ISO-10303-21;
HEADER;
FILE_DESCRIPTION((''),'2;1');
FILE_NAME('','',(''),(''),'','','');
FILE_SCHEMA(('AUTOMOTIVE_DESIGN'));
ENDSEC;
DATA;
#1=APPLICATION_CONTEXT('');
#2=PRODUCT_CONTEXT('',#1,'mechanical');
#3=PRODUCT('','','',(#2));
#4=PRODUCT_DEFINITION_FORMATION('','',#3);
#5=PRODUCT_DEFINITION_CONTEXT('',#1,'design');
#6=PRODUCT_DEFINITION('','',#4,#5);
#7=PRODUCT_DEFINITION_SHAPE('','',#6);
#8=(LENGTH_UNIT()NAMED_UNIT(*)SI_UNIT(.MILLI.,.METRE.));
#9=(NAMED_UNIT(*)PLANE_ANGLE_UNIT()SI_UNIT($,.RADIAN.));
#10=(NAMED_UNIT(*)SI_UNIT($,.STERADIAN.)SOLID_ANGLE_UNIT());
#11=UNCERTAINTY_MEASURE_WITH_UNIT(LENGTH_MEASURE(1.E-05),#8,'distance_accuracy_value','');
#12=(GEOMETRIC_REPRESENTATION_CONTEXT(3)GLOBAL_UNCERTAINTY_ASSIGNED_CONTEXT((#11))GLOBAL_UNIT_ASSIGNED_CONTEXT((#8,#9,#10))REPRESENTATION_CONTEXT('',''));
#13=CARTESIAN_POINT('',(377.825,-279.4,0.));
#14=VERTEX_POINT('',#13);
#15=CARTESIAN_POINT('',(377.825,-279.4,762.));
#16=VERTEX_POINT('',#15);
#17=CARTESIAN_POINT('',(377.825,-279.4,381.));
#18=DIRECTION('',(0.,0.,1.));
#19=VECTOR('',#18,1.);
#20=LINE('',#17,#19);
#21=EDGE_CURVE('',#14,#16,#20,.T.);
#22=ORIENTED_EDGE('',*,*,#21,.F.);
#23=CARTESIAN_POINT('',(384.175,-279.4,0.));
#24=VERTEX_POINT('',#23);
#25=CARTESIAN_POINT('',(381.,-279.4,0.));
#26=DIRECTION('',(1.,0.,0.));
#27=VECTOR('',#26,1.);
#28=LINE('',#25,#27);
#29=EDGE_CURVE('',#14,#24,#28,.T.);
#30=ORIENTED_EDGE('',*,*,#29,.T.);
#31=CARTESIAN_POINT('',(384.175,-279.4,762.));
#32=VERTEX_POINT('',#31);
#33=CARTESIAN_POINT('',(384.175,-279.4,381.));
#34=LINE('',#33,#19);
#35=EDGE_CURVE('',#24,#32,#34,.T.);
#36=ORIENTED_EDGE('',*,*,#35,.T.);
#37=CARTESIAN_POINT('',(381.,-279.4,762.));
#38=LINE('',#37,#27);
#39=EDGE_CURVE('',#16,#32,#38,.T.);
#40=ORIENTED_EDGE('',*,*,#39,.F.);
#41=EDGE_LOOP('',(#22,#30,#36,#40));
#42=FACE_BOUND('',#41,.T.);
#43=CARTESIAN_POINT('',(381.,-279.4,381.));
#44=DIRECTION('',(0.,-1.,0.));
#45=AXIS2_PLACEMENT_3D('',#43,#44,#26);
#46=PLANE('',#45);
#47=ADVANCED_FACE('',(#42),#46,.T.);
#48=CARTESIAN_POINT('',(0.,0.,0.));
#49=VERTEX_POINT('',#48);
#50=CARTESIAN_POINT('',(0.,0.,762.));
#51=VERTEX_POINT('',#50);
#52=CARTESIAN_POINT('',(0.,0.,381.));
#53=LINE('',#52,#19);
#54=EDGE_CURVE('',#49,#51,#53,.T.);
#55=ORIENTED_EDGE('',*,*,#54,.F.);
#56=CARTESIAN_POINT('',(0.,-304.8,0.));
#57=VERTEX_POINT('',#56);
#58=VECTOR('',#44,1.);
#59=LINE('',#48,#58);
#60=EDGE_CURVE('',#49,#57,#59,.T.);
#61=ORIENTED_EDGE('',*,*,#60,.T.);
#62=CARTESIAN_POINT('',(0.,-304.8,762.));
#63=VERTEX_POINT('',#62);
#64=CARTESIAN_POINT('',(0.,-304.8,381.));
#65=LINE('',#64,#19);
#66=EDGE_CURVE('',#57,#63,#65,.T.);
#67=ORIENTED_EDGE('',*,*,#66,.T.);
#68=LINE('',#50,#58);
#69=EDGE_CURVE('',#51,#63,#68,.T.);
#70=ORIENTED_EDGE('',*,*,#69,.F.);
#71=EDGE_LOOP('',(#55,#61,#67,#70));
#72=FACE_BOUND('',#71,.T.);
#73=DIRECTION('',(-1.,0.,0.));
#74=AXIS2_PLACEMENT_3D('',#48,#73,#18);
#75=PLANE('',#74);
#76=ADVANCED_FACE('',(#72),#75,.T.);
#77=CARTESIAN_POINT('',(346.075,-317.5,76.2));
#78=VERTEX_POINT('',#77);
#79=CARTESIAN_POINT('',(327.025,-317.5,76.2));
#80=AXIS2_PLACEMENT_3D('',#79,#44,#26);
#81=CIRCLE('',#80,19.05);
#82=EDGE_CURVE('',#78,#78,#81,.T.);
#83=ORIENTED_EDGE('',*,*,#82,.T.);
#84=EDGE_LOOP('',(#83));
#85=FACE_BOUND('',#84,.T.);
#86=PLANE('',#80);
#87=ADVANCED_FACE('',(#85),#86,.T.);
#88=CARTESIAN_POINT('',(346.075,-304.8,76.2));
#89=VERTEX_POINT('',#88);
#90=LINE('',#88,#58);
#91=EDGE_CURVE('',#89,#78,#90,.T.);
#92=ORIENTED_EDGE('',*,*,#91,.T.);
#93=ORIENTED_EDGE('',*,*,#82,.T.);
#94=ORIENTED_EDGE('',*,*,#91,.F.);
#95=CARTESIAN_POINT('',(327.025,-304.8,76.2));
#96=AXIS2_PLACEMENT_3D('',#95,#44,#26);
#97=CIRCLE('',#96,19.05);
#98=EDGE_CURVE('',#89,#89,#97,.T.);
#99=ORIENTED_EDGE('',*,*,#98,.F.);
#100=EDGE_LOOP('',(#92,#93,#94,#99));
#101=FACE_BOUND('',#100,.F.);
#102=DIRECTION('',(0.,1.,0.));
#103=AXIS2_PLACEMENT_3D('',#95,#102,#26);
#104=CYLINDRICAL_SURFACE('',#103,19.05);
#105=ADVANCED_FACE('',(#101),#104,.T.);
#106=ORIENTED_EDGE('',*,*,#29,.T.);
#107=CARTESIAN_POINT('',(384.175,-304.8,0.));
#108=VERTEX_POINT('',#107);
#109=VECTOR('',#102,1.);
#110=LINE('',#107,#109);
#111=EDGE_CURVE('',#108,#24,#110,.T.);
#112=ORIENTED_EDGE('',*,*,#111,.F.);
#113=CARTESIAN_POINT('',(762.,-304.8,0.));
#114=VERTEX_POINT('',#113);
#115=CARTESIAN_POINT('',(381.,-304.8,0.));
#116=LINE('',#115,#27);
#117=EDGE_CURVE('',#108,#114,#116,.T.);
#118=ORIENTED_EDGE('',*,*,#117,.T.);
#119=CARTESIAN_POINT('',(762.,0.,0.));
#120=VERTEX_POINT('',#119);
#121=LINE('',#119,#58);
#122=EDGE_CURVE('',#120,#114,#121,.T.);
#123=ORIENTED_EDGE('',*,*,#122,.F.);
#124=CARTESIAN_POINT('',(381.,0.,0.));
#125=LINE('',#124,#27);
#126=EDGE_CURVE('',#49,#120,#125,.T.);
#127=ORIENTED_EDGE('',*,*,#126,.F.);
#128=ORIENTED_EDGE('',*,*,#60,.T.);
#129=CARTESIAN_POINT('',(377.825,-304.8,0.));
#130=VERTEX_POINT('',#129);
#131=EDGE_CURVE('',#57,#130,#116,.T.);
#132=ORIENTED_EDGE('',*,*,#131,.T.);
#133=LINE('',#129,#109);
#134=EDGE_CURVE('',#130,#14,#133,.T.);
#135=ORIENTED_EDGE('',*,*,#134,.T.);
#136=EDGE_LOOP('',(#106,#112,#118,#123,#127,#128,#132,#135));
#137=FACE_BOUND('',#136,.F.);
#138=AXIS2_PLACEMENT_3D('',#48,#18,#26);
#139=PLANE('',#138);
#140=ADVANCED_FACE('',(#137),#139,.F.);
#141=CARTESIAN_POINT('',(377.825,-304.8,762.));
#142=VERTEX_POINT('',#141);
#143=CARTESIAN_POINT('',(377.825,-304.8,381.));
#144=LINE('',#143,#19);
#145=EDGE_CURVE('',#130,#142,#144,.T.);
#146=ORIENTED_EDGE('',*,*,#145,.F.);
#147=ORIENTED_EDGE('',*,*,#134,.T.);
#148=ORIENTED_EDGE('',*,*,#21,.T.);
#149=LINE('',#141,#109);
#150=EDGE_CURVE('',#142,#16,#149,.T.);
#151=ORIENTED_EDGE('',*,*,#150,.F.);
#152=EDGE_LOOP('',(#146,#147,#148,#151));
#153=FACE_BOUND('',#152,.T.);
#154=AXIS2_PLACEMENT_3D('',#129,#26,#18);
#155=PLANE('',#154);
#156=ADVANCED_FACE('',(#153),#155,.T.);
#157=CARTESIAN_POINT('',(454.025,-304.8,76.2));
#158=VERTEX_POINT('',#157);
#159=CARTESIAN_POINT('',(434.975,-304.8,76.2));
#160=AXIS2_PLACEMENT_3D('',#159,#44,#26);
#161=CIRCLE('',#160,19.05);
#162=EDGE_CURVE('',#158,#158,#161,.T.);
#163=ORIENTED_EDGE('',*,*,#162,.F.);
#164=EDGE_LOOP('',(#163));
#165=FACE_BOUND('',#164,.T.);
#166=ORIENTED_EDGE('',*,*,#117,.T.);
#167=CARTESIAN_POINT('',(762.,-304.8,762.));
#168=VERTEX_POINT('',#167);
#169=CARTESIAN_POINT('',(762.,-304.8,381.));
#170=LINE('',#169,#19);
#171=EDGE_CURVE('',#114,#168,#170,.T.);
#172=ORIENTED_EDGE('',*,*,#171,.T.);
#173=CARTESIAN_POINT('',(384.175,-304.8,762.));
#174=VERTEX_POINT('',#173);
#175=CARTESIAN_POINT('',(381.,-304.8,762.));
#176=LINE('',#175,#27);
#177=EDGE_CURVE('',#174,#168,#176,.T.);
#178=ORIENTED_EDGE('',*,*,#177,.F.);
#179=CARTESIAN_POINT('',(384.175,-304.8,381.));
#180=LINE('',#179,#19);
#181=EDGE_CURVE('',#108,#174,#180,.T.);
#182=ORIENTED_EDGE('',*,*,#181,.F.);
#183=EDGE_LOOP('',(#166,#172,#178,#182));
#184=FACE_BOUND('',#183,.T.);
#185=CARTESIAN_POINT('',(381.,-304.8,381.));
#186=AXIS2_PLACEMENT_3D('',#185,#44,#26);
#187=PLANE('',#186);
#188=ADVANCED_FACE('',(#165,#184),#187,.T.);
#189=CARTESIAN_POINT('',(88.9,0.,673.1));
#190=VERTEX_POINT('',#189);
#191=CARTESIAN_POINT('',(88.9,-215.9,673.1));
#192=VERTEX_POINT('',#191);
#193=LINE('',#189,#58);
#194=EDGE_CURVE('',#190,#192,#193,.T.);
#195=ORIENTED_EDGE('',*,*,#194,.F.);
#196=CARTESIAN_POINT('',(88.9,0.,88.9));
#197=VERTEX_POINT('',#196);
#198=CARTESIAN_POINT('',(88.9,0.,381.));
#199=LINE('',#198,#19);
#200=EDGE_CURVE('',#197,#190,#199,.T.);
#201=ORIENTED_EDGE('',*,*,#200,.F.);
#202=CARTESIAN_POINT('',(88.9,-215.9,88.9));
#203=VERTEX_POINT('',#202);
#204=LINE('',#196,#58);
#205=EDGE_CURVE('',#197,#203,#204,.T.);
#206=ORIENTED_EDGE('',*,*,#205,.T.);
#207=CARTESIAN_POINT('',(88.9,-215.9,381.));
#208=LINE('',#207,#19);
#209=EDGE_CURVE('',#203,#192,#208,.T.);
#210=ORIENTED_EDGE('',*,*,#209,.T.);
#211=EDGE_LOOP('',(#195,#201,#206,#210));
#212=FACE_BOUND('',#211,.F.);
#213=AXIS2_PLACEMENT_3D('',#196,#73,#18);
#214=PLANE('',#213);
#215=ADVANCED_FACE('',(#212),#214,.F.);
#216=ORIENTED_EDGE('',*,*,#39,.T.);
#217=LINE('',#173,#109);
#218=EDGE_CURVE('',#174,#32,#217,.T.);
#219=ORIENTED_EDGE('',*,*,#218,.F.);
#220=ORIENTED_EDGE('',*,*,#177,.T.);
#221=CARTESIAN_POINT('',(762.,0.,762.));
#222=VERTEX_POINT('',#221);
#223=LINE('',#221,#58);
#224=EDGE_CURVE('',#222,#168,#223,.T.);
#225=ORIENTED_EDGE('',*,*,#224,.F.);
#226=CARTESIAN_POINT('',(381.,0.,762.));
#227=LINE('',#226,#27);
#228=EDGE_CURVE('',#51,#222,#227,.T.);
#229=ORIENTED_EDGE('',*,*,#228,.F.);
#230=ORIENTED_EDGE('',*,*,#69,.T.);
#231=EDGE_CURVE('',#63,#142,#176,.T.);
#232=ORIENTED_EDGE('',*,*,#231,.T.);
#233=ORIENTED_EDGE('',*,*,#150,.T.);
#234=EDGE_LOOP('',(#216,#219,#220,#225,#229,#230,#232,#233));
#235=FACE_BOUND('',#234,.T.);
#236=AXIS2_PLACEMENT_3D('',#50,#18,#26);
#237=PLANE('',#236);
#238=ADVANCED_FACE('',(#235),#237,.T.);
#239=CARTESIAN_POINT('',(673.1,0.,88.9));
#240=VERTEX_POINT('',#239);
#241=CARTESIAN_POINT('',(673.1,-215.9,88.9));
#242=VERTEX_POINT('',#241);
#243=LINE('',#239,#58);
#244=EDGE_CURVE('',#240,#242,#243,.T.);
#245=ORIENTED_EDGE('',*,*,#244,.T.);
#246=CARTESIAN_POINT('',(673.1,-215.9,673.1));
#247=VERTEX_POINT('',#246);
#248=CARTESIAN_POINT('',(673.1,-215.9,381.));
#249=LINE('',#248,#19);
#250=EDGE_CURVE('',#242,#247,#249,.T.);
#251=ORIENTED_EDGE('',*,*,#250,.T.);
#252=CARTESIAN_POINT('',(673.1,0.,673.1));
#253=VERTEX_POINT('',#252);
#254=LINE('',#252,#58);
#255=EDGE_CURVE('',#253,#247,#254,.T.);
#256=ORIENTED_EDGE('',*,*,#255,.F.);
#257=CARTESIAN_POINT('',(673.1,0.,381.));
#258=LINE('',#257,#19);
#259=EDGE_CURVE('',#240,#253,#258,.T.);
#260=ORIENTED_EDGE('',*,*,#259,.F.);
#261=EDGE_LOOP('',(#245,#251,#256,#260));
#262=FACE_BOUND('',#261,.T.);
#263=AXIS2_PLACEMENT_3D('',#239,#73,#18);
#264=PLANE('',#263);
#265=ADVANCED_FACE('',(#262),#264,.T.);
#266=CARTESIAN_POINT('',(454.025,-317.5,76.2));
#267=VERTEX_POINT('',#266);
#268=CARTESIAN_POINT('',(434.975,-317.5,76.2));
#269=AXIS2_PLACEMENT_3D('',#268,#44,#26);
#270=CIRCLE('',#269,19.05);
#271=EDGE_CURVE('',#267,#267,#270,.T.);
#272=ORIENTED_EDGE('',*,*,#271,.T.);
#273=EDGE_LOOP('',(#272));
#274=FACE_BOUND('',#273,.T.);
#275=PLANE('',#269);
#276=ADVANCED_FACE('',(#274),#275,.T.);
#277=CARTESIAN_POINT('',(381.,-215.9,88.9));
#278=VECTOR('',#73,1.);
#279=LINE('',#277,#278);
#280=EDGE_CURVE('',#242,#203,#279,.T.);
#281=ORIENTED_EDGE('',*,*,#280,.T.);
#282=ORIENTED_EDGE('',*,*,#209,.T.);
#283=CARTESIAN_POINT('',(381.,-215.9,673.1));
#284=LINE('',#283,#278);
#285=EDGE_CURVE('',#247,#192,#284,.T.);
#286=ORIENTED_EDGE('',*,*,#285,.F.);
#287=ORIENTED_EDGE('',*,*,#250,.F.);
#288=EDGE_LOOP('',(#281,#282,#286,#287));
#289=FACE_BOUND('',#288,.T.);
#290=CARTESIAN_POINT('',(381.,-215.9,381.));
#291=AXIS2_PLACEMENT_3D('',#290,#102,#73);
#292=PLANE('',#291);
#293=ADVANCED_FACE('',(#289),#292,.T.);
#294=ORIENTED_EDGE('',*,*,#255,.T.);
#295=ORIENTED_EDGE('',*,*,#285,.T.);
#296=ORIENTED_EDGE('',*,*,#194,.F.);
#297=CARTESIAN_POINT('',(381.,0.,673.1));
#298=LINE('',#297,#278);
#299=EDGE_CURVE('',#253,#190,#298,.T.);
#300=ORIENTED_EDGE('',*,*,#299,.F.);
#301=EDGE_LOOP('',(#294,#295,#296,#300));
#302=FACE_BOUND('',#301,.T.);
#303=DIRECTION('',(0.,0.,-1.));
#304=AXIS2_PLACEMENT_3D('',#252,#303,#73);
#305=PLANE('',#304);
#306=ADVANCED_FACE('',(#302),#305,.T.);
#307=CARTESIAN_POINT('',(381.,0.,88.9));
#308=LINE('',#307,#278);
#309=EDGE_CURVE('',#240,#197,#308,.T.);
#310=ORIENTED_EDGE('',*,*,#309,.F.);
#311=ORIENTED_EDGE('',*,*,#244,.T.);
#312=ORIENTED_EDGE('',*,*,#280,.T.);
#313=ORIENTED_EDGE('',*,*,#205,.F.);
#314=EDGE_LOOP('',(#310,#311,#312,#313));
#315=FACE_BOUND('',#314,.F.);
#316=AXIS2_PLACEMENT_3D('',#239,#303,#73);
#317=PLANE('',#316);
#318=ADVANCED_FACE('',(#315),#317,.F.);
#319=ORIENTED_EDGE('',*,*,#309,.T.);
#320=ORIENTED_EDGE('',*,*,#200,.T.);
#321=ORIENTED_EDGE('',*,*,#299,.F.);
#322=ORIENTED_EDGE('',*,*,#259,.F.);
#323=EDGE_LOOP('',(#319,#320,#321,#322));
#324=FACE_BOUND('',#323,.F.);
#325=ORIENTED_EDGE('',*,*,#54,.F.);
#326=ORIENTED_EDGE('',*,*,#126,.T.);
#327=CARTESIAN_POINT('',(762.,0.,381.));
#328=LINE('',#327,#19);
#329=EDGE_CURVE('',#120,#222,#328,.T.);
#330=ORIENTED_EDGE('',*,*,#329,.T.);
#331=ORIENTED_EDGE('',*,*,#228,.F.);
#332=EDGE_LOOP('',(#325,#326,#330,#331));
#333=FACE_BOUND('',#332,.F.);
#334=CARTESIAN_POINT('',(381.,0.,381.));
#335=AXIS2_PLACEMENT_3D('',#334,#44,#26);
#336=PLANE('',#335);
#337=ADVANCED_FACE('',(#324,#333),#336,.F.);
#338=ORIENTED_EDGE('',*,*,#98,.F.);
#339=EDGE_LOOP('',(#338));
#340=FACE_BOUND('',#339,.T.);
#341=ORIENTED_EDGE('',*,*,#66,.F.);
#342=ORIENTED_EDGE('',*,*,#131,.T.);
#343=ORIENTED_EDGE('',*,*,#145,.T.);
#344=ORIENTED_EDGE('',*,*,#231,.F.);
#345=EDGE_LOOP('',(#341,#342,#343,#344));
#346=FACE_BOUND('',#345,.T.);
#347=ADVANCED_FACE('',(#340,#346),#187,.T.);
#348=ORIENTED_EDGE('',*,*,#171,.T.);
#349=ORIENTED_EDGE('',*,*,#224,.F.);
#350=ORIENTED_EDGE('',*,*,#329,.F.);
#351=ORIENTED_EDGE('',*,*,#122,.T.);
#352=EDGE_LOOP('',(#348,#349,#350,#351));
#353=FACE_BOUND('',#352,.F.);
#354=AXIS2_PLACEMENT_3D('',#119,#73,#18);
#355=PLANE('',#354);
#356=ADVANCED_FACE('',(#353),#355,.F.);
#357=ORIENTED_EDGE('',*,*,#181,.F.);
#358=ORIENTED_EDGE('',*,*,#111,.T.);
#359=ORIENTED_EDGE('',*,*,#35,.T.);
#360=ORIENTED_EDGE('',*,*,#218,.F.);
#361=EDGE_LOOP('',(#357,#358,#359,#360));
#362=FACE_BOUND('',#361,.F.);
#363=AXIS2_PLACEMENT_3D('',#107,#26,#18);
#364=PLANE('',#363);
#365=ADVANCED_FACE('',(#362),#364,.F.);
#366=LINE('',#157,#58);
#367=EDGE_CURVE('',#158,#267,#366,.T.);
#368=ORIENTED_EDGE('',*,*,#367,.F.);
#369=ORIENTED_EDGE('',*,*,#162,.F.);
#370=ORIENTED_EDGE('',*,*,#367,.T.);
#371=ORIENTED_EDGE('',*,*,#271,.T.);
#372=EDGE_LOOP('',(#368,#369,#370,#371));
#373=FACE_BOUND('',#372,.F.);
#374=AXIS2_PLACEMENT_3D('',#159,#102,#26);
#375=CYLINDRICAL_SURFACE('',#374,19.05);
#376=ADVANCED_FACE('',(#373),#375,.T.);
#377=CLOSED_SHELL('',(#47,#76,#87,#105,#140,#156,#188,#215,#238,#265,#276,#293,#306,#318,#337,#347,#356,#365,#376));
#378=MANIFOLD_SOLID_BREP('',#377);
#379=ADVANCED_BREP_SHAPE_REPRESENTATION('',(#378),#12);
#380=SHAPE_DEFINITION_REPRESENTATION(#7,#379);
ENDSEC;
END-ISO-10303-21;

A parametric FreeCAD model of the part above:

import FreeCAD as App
import Part
import Sketcher
from FreeCAD import Vector
Q = App.Units.Quantity

doc = App.newDocument("Part")
body = doc.addObject("PartDesign::Body", "Body")

sketch1 = body.newObject("Sketcher::SketchObject", "Sketch")
sketch1.AttachmentSupport = (doc.getObject("XZ_Plane"), [""])
sketch1.MapMode = "FlatFace"
sketch1.addGeometry(Part.LineSegment(Vector(0, 762, 0), Vector(0, 0, 0)), False)
sketch1.addGeometry(Part.LineSegment(Vector(0, 0, 0), Vector(762, 0, 0)), False)
sketch1.addGeometry(Part.LineSegment(Vector(762, 0, 0), Vector(762, 762, 0)), False)
sketch1.addGeometry(Part.LineSegment(Vector(762, 762, 0), Vector(0, 762, 0)), False)
sketch1.addConstraint(Sketcher.Constraint("Coincident", 0, 2, 1, 1))
sketch1.addConstraint(Sketcher.Constraint("Coincident", 1, 2, 2, 1))
sketch1.addConstraint(Sketcher.Constraint("Coincident", 2, 2, 3, 1))
sketch1.addConstraint(Sketcher.Constraint("Coincident", 3, 2, 0, 1))
sketch1.addConstraint(Sketcher.Constraint("Vertical", 0))
sketch1.addConstraint(Sketcher.Constraint("Horizontal", 1))
sketch1.addConstraint(Sketcher.Constraint("Vertical", 2))
sketch1.addConstraint(Sketcher.Constraint("Horizontal", 3))
sketch1.addConstraint(Sketcher.Constraint("Coincident", 0, 2, -1, 1))
sketch1.addConstraint(Sketcher.Constraint("Equal", 3, 0))
sketch1.addConstraint(Sketcher.Constraint("DistanceX", 1, 1, 1, 2, Q("30 in")))
pad1 = body.newObject("PartDesign::Pad", "Pad")
pad1.Profile = sketch1
pad1.Length = Q("12 in")

sketch2 = body.newObject("Sketcher::SketchObject", "Sketch001")
sketch2.AttachmentSupport = (doc.getObject("XZ_Plane"), [""])
sketch2.MapMode = "FlatFace"
sketch2.AttachmentOffset = App.Placement(Vector(0, 0, 12 * 25.4), App.Rotation())
sketch2.addGeometry(Part.LineSegment(Vector(378, 762, 0), Vector(378, 0, 0)), False)
sketch2.addGeometry(Part.LineSegment(Vector(378, 0, 0), Vector(384, 0, 0)), False)
sketch2.addGeometry(Part.LineSegment(Vector(384, 0, 0), Vector(384, 762, 0)), False)
sketch2.addGeometry(Part.LineSegment(Vector(384, 762, 0), Vector(378, 762, 0)), False)
sketch2.addConstraint(Sketcher.Constraint("Coincident", 0, 2, 1, 1))
sketch2.addConstraint(Sketcher.Constraint("Coincident", 1, 2, 2, 1))
sketch2.addConstraint(Sketcher.Constraint("Coincident", 2, 2, 3, 1))
sketch2.addConstraint(Sketcher.Constraint("Coincident", 3, 2, 0, 1))
sketch2.addConstraint(Sketcher.Constraint("Vertical", 0))
sketch2.addConstraint(Sketcher.Constraint("Horizontal", 1))
sketch2.addConstraint(Sketcher.Constraint("Vertical", 2))
sketch2.addConstraint(Sketcher.Constraint("Horizontal", 3))
sketch2.addConstraint(Sketcher.Constraint("PointOnObject", 0, 2, -1))
sketch2.addConstraint(Sketcher.Constraint("DistanceY", 0, 2, 0, 1, Q("30 in")))
sketch2.addConstraint(Sketcher.Constraint("DistanceX", 1, 1, 1, 2, Q("0.25 in")))
sketch2.addConstraint(Sketcher.Constraint("DistanceX", -1, 1, 0, 2, Q("14.875 in")))
pocket1 = body.newObject("PartDesign::Pocket", "Pocket")
pocket1.Profile = sketch2
pocket1.Length = Q("1 in")

sketch3 = body.newObject("Sketcher::SketchObject", "Sketch002")
sketch3.AttachmentSupport = (doc.getObject("XZ_Plane"), [""])
sketch3.MapMode = "FlatFace"
sketch3.AttachmentOffset = App.Placement(Vector(0, 0, 12 * 25.4), App.Rotation())
sketch3.addGeometry(Part.Circle(Vector(327, 76, 0), Vector(0, 0, 1), 19), False)
sketch3.addGeometry(Part.Circle(Vector(435, 76, 0), Vector(0, 0, 1), 19), False)
sketch3.addConstraint(Sketcher.Constraint("Equal", 0, 1))
sketch3.addConstraint(Sketcher.Constraint("Horizontal", 0, 3, 1, 3))
sketch3.addConstraint(Sketcher.Constraint("Diameter", 0, Q("1.5 in")))
sketch3.addConstraint(Sketcher.Constraint("DistanceY", -1, 1, 0, 3, Q("3 in")))
sketch3.addConstraint(Sketcher.Constraint("DistanceX", 0, 3, 1, 3, Q("4.25 in")))
sketch3.addConstraint(Sketcher.Constraint("DistanceX", -1, 1, 0, 3, Q("12.875 in")))
pad2 = body.newObject("PartDesign::Pad", "Pad001")
pad2.Profile = sketch3
pad2.Length = Q("0.5 in")

sketch4 = body.newObject("Sketcher::SketchObject", "Sketch003")
sketch4.AttachmentSupport = (doc.getObject("XZ_Plane"), [""])
sketch4.MapMode = "FlatFace"
sketch4.addGeometry(Part.LineSegment(Vector(673, 673, 0), Vector(673, 89, 0)), False)
sketch4.addGeometry(Part.LineSegment(Vector(673, 89, 0), Vector(89, 89, 0)), False)
sketch4.addGeometry(Part.LineSegment(Vector(89, 89, 0), Vector(89, 673, 0)), False)
sketch4.addGeometry(Part.LineSegment(Vector(89, 673, 0), Vector(673, 673, 0)), False)
sketch4.addConstraint(Sketcher.Constraint("Coincident", 0, 2, 1, 1))
sketch4.addConstraint(Sketcher.Constraint("Coincident", 1, 2, 2, 1))
sketch4.addConstraint(Sketcher.Constraint("Coincident", 2, 2, 3, 1))
sketch4.addConstraint(Sketcher.Constraint("Coincident", 3, 2, 0, 1))
sketch4.addConstraint(Sketcher.Constraint("Vertical", 0))
sketch4.addConstraint(Sketcher.Constraint("Horizontal", 1))
sketch4.addConstraint(Sketcher.Constraint("Vertical", 2))
sketch4.addConstraint(Sketcher.Constraint("Horizontal", 3))
sketch4.addConstraint(Sketcher.Constraint("Equal", 3, 0))
sketch4.addConstraint(Sketcher.Constraint("DistanceX", 1, 2, 1, 1, Q("23 in")))
sketch4.addConstraint(Sketcher.Constraint("DistanceX", -1, 1, 0, 2, Q("26.5 in")))
sketch4.addConstraint(Sketcher.Constraint("DistanceY", -1, 1, 0, 2, Q("3.5 in")))
pocket2 = body.newObject("PartDesign::Pocket", "Pocket001")
pocket2.Profile = sketch4
pocket2.Length = Q("8.5 in")
pocket2.Reversed = True

doc.recompute()
